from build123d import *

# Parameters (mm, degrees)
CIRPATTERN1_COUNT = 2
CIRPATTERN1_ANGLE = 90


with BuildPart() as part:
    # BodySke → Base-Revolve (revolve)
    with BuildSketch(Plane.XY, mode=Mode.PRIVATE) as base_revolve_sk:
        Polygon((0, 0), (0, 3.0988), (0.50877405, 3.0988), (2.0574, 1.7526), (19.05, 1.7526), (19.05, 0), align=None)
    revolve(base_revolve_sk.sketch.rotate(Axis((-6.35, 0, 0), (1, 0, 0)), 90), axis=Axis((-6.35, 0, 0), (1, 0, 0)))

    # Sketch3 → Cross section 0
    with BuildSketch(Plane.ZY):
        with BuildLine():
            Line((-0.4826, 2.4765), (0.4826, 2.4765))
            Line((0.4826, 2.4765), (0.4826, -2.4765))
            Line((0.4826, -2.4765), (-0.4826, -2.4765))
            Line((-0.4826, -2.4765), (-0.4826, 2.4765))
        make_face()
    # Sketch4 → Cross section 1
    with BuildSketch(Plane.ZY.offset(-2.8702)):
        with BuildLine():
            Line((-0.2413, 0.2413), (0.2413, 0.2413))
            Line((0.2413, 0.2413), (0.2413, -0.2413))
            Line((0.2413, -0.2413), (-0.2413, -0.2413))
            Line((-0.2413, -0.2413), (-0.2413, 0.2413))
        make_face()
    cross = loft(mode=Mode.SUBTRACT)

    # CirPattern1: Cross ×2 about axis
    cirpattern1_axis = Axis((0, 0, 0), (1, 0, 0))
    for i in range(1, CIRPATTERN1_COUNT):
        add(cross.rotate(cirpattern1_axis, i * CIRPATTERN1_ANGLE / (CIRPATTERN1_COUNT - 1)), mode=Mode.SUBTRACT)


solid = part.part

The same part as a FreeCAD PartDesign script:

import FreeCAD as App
import Part
import Sketcher
Q = App.Units.Quantity


def add_polygon(sketch, points):
    """Adds a closed chain of lines whose ends are joined by coincident constraints."""
    first, n = sketch.GeometryCount, len(points)
    for a, b in zip(points, points[1:] + points[:1]):
        sketch.addGeometry(Part.LineSegment(App.Vector(*a, 0), App.Vector(*b, 0)), False)
    for i in range(n):
        sketch.addConstraint(Sketcher.Constraint("Coincident", first + i, 2, first + (i + 1) % n, 1))

doc = App.newDocument("Part")
body = doc.addObject("PartDesign::Body", "Body")

# Sketch on XY plane
sketch1 = body.newObject("Sketcher::SketchObject", "Sketch")
sketch1.AttachmentSupport = (doc.getObject("XY_Plane"), [""])
sketch1.MapMode = "FlatFace"
add_polygon(sketch1, [(0, 3.0988), (0, 0), (19.05, 0), (19.05, 1.7526), (2.0574, 1.7526), (0.508774, 3.0988)])  # lines 0-5
sketch1.addConstraint(Sketcher.Constraint("Vertical", 0))
sketch1.addConstraint(Sketcher.Constraint("Horizontal", 1))
sketch1.addConstraint(Sketcher.Constraint("Vertical", 2))
sketch1.addConstraint(Sketcher.Constraint("Horizontal", 3))
sketch1.addConstraint(Sketcher.Constraint("Horizontal", 5))
sketch1.addConstraint(Sketcher.Constraint("Coincident", 0, 2, -1, 1))
sketch1.addConstraint(Sketcher.Constraint("Angle", 4, Q("139 deg")))
sketch1.addConstraint(Sketcher.Constraint("DistanceX", 1, 1, 1, 2, Q("0.75 in")))
sketch1.addConstraint(Sketcher.Constraint("DistanceX", 3, 2, 3, 1, Q("0.669 in")))
sketch1.addConstraint(Sketcher.Constraint("DistanceY", 0, 2, 0, 1, Q("0.122 in")))
sketch1.addConstraint(Sketcher.Constraint("DistanceY", 2, 1, 2, 2, Q("0.069 in")))
revolution = body.newObject("PartDesign::Revolution", "Revolution")
revolution.Profile = sketch1
revolution.ReferenceAxis = (sketch1, ["H_Axis"])
revolution.Angle = 360

# Sketch on YZ plane
sketch2 = body.newObject("Sketcher::SketchObject", "Sketch001")
sketch2.AttachmentSupport = (doc.getObject("YZ_Plane"), [""])
sketch2.MapMode = "FlatFace"
add_polygon(sketch2, [(2.4765, 0.4826), (2.4765, -0.4826), (-2.4765, -0.4826), (-2.4765, 0.4826)])  # lines 0-3
sketch2.addConstraint(Sketcher.Constraint("Vertical", 0))
sketch2.addConstraint(Sketcher.Constraint("Horizontal", 1))
sketch2.addConstraint(Sketcher.Constraint("Vertical", 2))
sketch2.addConstraint(Sketcher.Constraint("Horizontal", 3))
sketch2.addConstraint(Sketcher.Constraint("Symmetric", 0, 2, 2, 2, -1, 1))
sketch2.addConstraint(Sketcher.Constraint("DistanceX", 1, 2, 1, 1, Q("0.195 in")))
sketch2.addConstraint(Sketcher.Constraint("DistanceY", 0, 2, 0, 1, Q("0.038 in")))

# Sketch on YZ plane
sketch3 = body.newObject("Sketcher::SketchObject", "Sketch002")
sketch3.AttachmentSupport = (doc.getObject("YZ_Plane"), [""])
sketch3.MapMode = "FlatFace"
sketch3.AttachmentOffset = App.Placement(App.Vector(0, 0, 0.113 * 25.4), App.Rotation())
add_polygon(sketch3, [(0.2413, 0.2413), (0.2413, -0.2413), (-0.2413, -0.2413), (-0.2413, 0.2413)])  # lines 0-3
sketch3.addConstraint(Sketcher.Constraint("Vertical", 0))
sketch3.addConstraint(Sketcher.Constraint("Horizontal", 1))
sketch3.addConstraint(Sketcher.Constraint("Vertical", 2))
sketch3.addConstraint(Sketcher.Constraint("Horizontal", 3))
sketch3.addConstraint(Sketcher.Constraint("Symmetric", 0, 2, 2, 2, -1, 1))
sketch3.addConstraint(Sketcher.Constraint("Equal", 3, 0))
sketch3.addConstraint(Sketcher.Constraint("DistanceX", 1, 2, 1, 1, Q("0.019 in")))

subtractiveloft = body.newObject("PartDesign::SubtractiveLoft", "SubtractiveLoft")
subtractiveloft.Profile = sketch2
subtractiveloft.Sections = [sketch3]
doc.recompute()

polarpattern = body.newObject("PartDesign::PolarPattern", "PolarPattern")
polarpattern.Originals = [subtractiveloft]
polarpattern.Axis = (doc.getObject("X_Axis"), [""])
polarpattern.Angle = 90
polarpattern.Occurrences = 2
body.Tip = polarpattern

doc.recompute()
